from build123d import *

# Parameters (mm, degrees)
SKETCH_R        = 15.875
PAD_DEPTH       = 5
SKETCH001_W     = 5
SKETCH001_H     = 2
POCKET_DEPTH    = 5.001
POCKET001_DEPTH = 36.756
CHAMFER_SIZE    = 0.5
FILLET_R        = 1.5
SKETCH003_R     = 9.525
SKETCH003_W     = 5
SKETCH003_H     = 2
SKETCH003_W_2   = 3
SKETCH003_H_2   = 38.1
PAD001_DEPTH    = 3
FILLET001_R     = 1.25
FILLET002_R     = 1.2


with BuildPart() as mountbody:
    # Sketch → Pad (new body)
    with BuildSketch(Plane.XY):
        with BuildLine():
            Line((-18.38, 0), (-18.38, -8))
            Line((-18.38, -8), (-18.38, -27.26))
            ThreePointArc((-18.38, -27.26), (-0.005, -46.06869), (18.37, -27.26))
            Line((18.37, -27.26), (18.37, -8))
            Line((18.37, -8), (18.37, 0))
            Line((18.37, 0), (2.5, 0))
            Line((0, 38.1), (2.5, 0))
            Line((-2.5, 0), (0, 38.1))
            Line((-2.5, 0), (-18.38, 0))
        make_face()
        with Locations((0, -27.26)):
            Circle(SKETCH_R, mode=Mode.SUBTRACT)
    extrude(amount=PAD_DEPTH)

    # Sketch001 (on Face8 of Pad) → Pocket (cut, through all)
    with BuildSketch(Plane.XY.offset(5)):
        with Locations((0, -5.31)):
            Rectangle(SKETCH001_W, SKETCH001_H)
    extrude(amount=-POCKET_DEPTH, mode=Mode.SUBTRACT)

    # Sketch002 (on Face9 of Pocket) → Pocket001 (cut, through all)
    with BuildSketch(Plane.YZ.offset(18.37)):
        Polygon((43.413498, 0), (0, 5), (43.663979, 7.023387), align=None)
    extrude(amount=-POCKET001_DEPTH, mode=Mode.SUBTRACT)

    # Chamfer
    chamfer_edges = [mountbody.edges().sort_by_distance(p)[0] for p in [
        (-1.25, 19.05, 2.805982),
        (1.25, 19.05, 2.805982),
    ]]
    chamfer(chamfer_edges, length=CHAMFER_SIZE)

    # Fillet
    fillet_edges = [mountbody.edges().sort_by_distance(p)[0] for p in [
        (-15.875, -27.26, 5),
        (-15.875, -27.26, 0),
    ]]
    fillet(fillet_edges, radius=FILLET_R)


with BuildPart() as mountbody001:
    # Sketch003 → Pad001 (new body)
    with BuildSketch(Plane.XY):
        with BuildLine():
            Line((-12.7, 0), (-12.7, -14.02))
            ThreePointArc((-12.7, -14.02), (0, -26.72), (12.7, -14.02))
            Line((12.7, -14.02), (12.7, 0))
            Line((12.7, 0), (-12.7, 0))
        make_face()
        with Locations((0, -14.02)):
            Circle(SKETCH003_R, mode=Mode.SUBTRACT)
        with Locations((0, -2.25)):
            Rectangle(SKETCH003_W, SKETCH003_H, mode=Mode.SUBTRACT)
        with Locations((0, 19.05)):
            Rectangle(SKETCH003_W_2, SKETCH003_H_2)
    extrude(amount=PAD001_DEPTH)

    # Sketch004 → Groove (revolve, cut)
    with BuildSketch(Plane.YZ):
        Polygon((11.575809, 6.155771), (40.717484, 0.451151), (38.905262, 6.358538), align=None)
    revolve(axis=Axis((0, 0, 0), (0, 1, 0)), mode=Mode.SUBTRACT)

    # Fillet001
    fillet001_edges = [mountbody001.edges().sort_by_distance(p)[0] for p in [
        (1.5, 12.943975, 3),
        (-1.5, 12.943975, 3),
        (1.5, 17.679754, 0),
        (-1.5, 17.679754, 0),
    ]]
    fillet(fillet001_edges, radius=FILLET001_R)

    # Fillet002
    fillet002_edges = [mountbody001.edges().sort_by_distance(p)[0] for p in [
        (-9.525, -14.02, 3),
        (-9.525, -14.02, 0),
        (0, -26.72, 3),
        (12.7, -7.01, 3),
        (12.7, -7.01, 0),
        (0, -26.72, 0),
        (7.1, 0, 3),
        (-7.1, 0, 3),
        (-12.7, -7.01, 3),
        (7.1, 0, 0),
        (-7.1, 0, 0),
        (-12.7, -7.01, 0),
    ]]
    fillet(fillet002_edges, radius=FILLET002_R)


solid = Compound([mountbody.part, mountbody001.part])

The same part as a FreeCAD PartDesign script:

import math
import FreeCAD as App
import Part
import Sketcher
from FreeCAD import Vector


def edges_at(feature, points):
    """Names of the edges that pass closest to the given points."""
    edges = feature.Shape.Edges
    near = lambda p: min(range(len(edges)), key=lambda i: edges[i].distToShape(Part.Vertex(*p))[0])
    return sorted({f"Edge{near(p) + 1}" for p in points})

doc = App.newDocument("Part")
body = doc.addObject("PartDesign::Body", "Body")

# Sketch on XY plane
sketch1 = doc.addObject("Sketcher::SketchObject", "Sketch")
body.addObject(sketch1)
sketch1.AttachmentSupport = (doc.XY_Plane, [""])
sketch1.MapMode = "FlatFace"
sketch1.addGeometry(Part.LineSegment(Vector(-18, 0, 0), Vector(-18, -27, 0)), False)
sketch1.addGeometry(Part.ArcOfCircle(Part.Circle(Vector(0, -28, 0), Vector(0, 0, 1), 18), math.radians(179), math.radians(361)), False)
sketch1.addGeometry(Part.LineSegment(Vector(18, -27, 0), Vector(18, 0, 0)), False)
sketch1.addGeometry(Part.LineSegment(Vector(18, 0, 0), Vector(2, 0, 0)), False)
sketch1.addGeometry(Part.LineSegment(Vector(2, 0, 0), Vector(0, 38, 0)), False)
sketch1.addGeometry(Part.LineSegment(Vector(0, 38, 0), Vector(-2, 0, 0)), False)
sketch1.addGeometry(Part.LineSegment(Vector(-2, 0, 0), Vector(-18, 0, 0)), False)
sketch1.addGeometry(Part.Circle(Vector(0, -27, 0), Vector(0, 0, 1), 16), False)
sketch1.addConstraint(Sketcher.Constraint("Coincident", 0, 2, 1, 1))
sketch1.addConstraint(Sketcher.Constraint("Coincident", 1, 2, 2, 1))
sketch1.addConstraint(Sketcher.Constraint("Coincident", 2, 2, 3, 1))
sketch1.addConstraint(Sketcher.Constraint("Coincident", 3, 2, 4, 1))
sketch1.addConstraint(Sketcher.Constraint("Coincident", 4, 2, 5, 1))
sketch1.addConstraint(Sketcher.Constraint("Coincident", 5, 2, 6, 1))
sketch1.addConstraint(Sketcher.Constraint("Coincident", 6, 2, 0, 1))
sketch1.addConstraint(Sketcher.Constraint("Vertical", 0))
sketch1.addConstraint(Sketcher.Constraint("Vertical", 2))
sketch1.addConstraint(Sketcher.Constraint("Horizontal", 3))
sketch1.addConstraint(Sketcher.Constraint("Horizontal", 6))
sketch1.addConstraint(Sketcher.Constraint("Symmetric", 3, 2, 5, 2, -1, 1))
sketch1.addConstraint(Sketcher.Constraint("PointOnObject", 7, 3, -2))
sketch1.addConstraint(Sketcher.Constraint("PointOnObject", 2, 2, -1))
sketch1.addConstraint(Sketcher.Constraint("PointOnObject", 4, 2, -2))
sketch1.addConstraint(Sketcher.Constraint("Horizontal", 7, 3, 0, 2))
sketch1.addConstraint(Sketcher.Constraint("Horizontal", 0, 2, 1, 2))
sketch1.addConstraint(Sketcher.Constraint("Diameter", 7, 31.75))
sketch1.addConstraint(Sketcher.Constraint("Radius", 1, 18.38))
sketch1.addConstraint(Sketcher.Constraint("DistanceX", 5, 2, 3, 2, 5.0))
sketch1.addConstraint(Sketcher.Constraint("DistanceX", 3, 2, 3, 1, 15.87))
sketch1.addConstraint(Sketcher.Constraint("DistanceX", 6, 2, 6, 1, 15.88))
sketch1.addConstraint(Sketcher.Constraint("DistanceY", 0, 2, 0, 1, 27.26))
sketch1.addConstraint(Sketcher.Constraint("DistanceY", -1, 1, 4, 2, 38.1))
pad1 = doc.addObject("PartDesign::Pad", "Pad")
body.addObject(pad1)
pad1.Profile = sketch1
pad1.Length = 5

# Sketch on XY plane
sketch2 = doc.addObject("Sketcher::SketchObject", "Sketch001")
body.addObject(sketch2)
sketch2.AttachmentSupport = (doc.XY_Plane, [""])
sketch2.MapMode = "FlatFace"
sketch2.AttachmentOffset = App.Placement(Vector(0, 0, 5), App.Rotation())
sketch2.addGeometry(Part.LineSegment(Vector(-2.5, -4.3, 0), Vector(-2.5, -6.3, 0)), False)
sketch2.addGeometry(Part.LineSegment(Vector(-2.5, -6.3, 0), Vector(2.5, -6.3, 0)), False)
sketch2.addGeometry(Part.LineSegment(Vector(2.5, -6.3, 0), Vector(2.5, -4.3, 0)), False)
sketch2.addGeometry(Part.LineSegment(Vector(2.5, -4.3, 0), Vector(-2.5, -4.3, 0)), False)
sketch2.addConstraint(Sketcher.Constraint("Coincident", 0, 2, 1, 1))
sketch2.addConstraint(Sketcher.Constraint("Coincident", 1, 2, 2, 1))
sketch2.addConstraint(Sketcher.Constraint("Coincident", 2, 2, 3, 1))
sketch2.addConstraint(Sketcher.Constraint("Coincident", 3, 2, 0, 1))
sketch2.addConstraint(Sketcher.Constraint("Vertical", 0))
sketch2.addConstraint(Sketcher.Constraint("Horizontal", 1))
sketch2.addConstraint(Sketcher.Constraint("Vertical", 2))
sketch2.addConstraint(Sketcher.Constraint("Horizontal", 3))
sketch2.addConstraint(Sketcher.Constraint("DistanceX", 1, 1, 1, 2, 5.0))
sketch2.addConstraint(Sketcher.Constraint("DistanceY", 0, 2, 0, 1, 2.0))
sketch2.addConstraint(Sketcher.Constraint("DistanceX", 0, 2, -1, 1, 2.5))
sketch2.addConstraint(Sketcher.Constraint("DistanceY", 0, 2, -1, 1, 6.31))
pocket1 = doc.addObject("PartDesign::Pocket", "Pocket")
body.addObject(pocket1)
pocket1.Profile = sketch2
pocket1.Type = "ThroughAll"

# Sketch on YZ plane
sketch3 = doc.addObject("Sketcher::SketchObject", "Sketch002")
body.addObject(sketch3)
sketch3.AttachmentSupport = (doc.YZ_Plane, [""])
sketch3.MapMode = "FlatFace"
sketch3.AttachmentOffset = App.Placement(Vector(0, 0, 18.37), App.Rotation())
sketch3.addGeometry(Part.LineSegment(Vector(0, 5, 0), Vector(43, 0, 0)), False)
sketch3.addGeometry(Part.LineSegment(Vector(43, 0, 0), Vector(44, 7, 0)), False)
sketch3.addGeometry(Part.LineSegment(Vector(44, 7, 0), Vector(0, 5, 0)), False)
sketch3.addConstraint(Sketcher.Constraint("Coincident", 0, 2, 1, 1))
sketch3.addConstraint(Sketcher.Constraint("Coincident", 1, 2, 2, 1))
sketch3.addConstraint(Sketcher.Constraint("Coincident", 2, 2, 0, 1))
sketch3.addConstraint(Sketcher.Constraint("PointOnObject", 0, 2, -1))
sketch3.addConstraint(Sketcher.Constraint("PointOnObject", 2, 2, -2))
sketch3.addConstraint(Sketcher.Constraint("DistanceY", -1, 1, 2, 2, 5.0))
sketch3.addConstraint(Sketcher.Constraint("Distance", 0, 43.700478))
sketch3.addConstraint(Sketcher.Constraint("DistanceX", -1, 1, 1, 2, 43.663979))
sketch3.addConstraint(Sketcher.Constraint("Distance", 1, 7.027852))
pocket2 = doc.addObject("PartDesign::Pocket", "Pocket001")
body.addObject(pocket2)
pocket2.Profile = sketch3
pocket2.Type = "ThroughAll"
doc.recompute()

chamfer = doc.addObject("PartDesign::Chamfer", "Chamfer")
body.addObject(chamfer)
chamfer.Base = (pocket2, edges_at(pocket2, [(-1.25, 19.05, 2.806), (1.25, 19.05, 2.806)]))
chamfer.Size = 0.5
doc.recompute()

fillet = doc.addObject("PartDesign::Fillet", "Fillet")
body.addObject(fillet)
fillet.Base = (chamfer, edges_at(chamfer, [(-15.875, -27.26, 5), (-15.875, -27.26, 0)]))
fillet.Radius = 1.5
body2 = doc.addObject("PartDesign::Body", "Body001")

# Sketch on XY plane
sketch4 = doc.addObject("Sketcher::SketchObject", "Sketch003")
body2.addObject(sketch4)
sketch4.AttachmentSupport = (doc.getObject("XY_Plane001"), [""])
sketch4.MapMode = "FlatFace"
sketch4.addGeometry(Part.LineSegment(Vector(-12.7, 0, 0), Vector(-12.7, -14, 0)), False)
sketch4.addGeometry(Part.ArcOfCircle(Part.Circle(Vector(0, -14, 0), Vector(0, 0, 1), 12.7), math.radians(180), math.radians(360)), False)
sketch4.addGeometry(Part.LineSegment(Vector(12.7, -14, 0), Vector(12.7, 0, 0)), False)
sketch4.addGeometry(Part.LineSegment(Vector(12.7, 0, 0), Vector(1.5, 0, 0)), False)
sketch4.addGeometry(Part.LineSegment(Vector(1.5, 0, 0), Vector(1.5, 38.1, 0)), False)
sketch4.addGeometry(Part.LineSegment(Vector(1.5, 38.1, 0), Vector(-1.5, 38.1, 0)), False)
sketch4.addGeometry(Part.LineSegment(Vector(-1.5, 38.1, 0), Vector(-1.5, 0, 0)), False)
sketch4.addGeometry(Part.LineSegment(Vector(-1.5, 0, 0), Vector(-12.7, 0, 0)), False)
sketch4.addGeometry(Part.Circle(Vector(0, -14, 0), Vector(0, 0, 1), 9.5), False)
sketch4.addGeometry(Part.LineSegment(Vector(2.5, -3.2, 0), Vector(-2.5, -3.2, 0)), False)
sketch4.addGeometry(Part.LineSegment(Vector(-2.5, -3.2, 0), Vector(-2.5, -1.2, 0)), False)
sketch4.addGeometry(Part.LineSegment(Vector(-2.5, -1.2, 0), Vector(2.5, -1.2, 0)), False)
sketch4.addGeometry(Part.LineSegment(Vector(2.5, -1.2, 0), Vector(2.5, -3.2, 0)), False)
sketch4.addConstraint(Sketcher.Constraint("Tangent", 0, 2, 1, 1))
sketch4.addConstraint(Sketcher.Constraint("Tangent", 1, 2, 2, 1))
sketch4.addConstraint(Sketcher.Constraint("Coincident", 2, 2, 3, 1))
sketch4.addConstraint(Sketcher.Constraint("Coincident", 3, 2, 4, 1))
sketch4.addConstraint(Sketcher.Constraint("Coincident", 4, 2, 5, 1))
sketch4.addConstraint(Sketcher.Constraint("Coincident", 5, 2, 6, 1))
sketch4.addConstraint(Sketcher.Constraint("Coincident", 6, 2, 7, 1))
sketch4.addConstraint(Sketcher.Constraint("Coincident", 7, 2, 0, 1))
sketch4.addConstraint(Sketcher.Constraint("Coincident", 9, 2, 10, 1))
sketch4.addConstraint(Sketcher.Constraint("Coincident", 10, 2, 11, 1))
sketch4.addConstraint(Sketcher.Constraint("Coincident", 11, 2, 12, 1))
sketch4.addConstraint(Sketcher.Constraint("Coincident", 12, 2, 9, 1))
sketch4.addConstraint(Sketcher.Constraint("Vertical", 0))
sketch4.addConstraint(Sketcher.Constraint("Vertical", 2))
sketch4.addConstraint(Sketcher.Constraint("Horizontal", 3))
sketch4.addConstraint(Sketcher.Constraint("Vertical", 4))
sketch4.addConstraint(Sketcher.Constraint("Horizontal", 5))
sketch4.addConstraint(Sketcher.Constraint("Vertical", 6))
sketch4.addConstraint(Sketcher.Constraint("Horizontal", 7))
sketch4.addConstraint(Sketcher.Constraint("Horizontal", 9))
sketch4.addConstraint(Sketcher.Constraint("Vertical", 10))
sketch4.addConstraint(Sketcher.Constraint("Horizontal", 11))
sketch4.addConstraint(Sketcher.Constraint("Vertical", 12))
sketch4.addConstraint(Sketcher.Constraint("Coincident", 8, 3, 1, 3))
sketch4.addConstraint(Sketcher.Constraint("Symmetric", 3, 2, 6, 2, -1, 1))
sketch4.addConstraint(Sketcher.Constraint("Symmetric", 2, 2, 7, 2, -2))
sketch4.addConstraint(Sketcher.Constraint("Radius", 1, 12.7))
sketch4.addConstraint(Sketcher.Constraint("Diameter", 8, 19.05))
sketch4.addConstraint(Sketcher.Constraint("DistanceX", 5, 2, 5, 1, 3.0))
sketch4.addConstraint(Sketcher.Constraint("DistanceX", 9, 2, 9, 1, 5.0))
sketch4.addConstraint(Sketcher.Constraint("DistanceY", 10, 1, 10, 2, 2.0))
sketch4.addConstraint(Sketcher.Constraint("DistanceY", 4, 1, 4, 2, 38.1))
sketch4.addConstraint(Sketcher.Constraint("DistanceX", 9, 2, 6, 2, 1.0))
sketch4.addConstraint(Sketcher.Constraint("DistanceY", 0, 2, 0, 1, 14.02))
sketch4.addConstraint(Sketcher.Constraint("DistanceY", 9, 2, -1, 1, 3.25))
pad2 = doc.addObject("PartDesign::Pad", "Pad001")
body2.addObject(pad2)
pad2.Profile = sketch4
pad2.Length = 3

# Sketch on YZ plane
sketch5 = doc.addObject("Sketcher::SketchObject", "Sketch004")
body2.addObject(sketch5)
sketch5.AttachmentSupport = (doc.getObject("YZ_Plane001"), [""])
sketch5.MapMode = "FlatFace"
sketch5.addGeometry(Part.LineSegment(Vector(12, 6, 0), Vector(41, 0, 0)), False)
sketch5.addGeometry(Part.LineSegment(Vector(41, 0, 0), Vector(39, 6, 0)), False)
sketch5.addGeometry(Part.LineSegment(Vector(39, 6, 0), Vector(12, 6, 0)), False)
sketch5.addConstraint(Sketcher.Constraint("Coincident", 0, 2, 1, 1))
sketch5.addConstraint(Sketcher.Constraint("Coincident", 1, 2, 2, 1))
sketch5.addConstraint(Sketcher.Constraint("Coincident", 2, 2, 0, 1))
sketch5.addConstraint(Sketcher.Constraint("Distance", 0, 29.694779))
sketch5.addConstraint(Sketcher.Constraint("DistanceY", -1, 1, 0, 2, 0.451151))
sketch5.addConstraint(Sketcher.Constraint("DistanceY", -1, 1, 1, 2, 6.358538))
sketch5.addConstraint(Sketcher.Constraint("DistanceX", -1, 1, 2, 2, 11.575809))
sketch5.addConstraint(Sketcher.Constraint("DistanceY", -1, 1, 2, 2, 6.155771))
sketch5.addConstraint(Sketcher.Constraint("DistanceX", 1, 2, 0, 2, 1.812222))
groove = doc.addObject("PartDesign::Groove", "Groove")
body2.addObject(groove)
groove.Profile = sketch5
groove.ReferenceAxis = (sketch5, ["H_Axis"])
groove.Angle = 360
doc.recompute()

fillet2 = doc.addObject("PartDesign::Fillet", "Fillet001")
body2.addObject(fillet2)
fillet2.Base = (groove, edges_at(groove, [
    (1.5, 12.944, 3),
    (-1.5, 12.944, 3),
    (1.5, 17.68, 0),
    (-1.5, 17.68, 0),
]))
fillet2.Radius = 1.25
doc.recompute()

fillet3 = doc.addObject("PartDesign::Fillet", "Fillet002")
body2.addObject(fillet3)
fillet3.Base = (fillet2, edges_at(fillet2, [
    (-9.525, -14.02, 3),
    (-9.525, -14.02, 0),
    (0, -26.72, 3),
    (12.7, -7.01, 3),
    (12.7, -7.01, 0),
    (0, -26.72, 0),
    (6.475, 0, 3),
    (-6.475, 0, 3),
    (-12.7, -7.01, 3),
    (6.475, 0, 0),
    (-6.475, 0, 0),
    (-12.7, -7.01, 0),
]))
fillet3.Radius = 1.2

doc.recompute()
